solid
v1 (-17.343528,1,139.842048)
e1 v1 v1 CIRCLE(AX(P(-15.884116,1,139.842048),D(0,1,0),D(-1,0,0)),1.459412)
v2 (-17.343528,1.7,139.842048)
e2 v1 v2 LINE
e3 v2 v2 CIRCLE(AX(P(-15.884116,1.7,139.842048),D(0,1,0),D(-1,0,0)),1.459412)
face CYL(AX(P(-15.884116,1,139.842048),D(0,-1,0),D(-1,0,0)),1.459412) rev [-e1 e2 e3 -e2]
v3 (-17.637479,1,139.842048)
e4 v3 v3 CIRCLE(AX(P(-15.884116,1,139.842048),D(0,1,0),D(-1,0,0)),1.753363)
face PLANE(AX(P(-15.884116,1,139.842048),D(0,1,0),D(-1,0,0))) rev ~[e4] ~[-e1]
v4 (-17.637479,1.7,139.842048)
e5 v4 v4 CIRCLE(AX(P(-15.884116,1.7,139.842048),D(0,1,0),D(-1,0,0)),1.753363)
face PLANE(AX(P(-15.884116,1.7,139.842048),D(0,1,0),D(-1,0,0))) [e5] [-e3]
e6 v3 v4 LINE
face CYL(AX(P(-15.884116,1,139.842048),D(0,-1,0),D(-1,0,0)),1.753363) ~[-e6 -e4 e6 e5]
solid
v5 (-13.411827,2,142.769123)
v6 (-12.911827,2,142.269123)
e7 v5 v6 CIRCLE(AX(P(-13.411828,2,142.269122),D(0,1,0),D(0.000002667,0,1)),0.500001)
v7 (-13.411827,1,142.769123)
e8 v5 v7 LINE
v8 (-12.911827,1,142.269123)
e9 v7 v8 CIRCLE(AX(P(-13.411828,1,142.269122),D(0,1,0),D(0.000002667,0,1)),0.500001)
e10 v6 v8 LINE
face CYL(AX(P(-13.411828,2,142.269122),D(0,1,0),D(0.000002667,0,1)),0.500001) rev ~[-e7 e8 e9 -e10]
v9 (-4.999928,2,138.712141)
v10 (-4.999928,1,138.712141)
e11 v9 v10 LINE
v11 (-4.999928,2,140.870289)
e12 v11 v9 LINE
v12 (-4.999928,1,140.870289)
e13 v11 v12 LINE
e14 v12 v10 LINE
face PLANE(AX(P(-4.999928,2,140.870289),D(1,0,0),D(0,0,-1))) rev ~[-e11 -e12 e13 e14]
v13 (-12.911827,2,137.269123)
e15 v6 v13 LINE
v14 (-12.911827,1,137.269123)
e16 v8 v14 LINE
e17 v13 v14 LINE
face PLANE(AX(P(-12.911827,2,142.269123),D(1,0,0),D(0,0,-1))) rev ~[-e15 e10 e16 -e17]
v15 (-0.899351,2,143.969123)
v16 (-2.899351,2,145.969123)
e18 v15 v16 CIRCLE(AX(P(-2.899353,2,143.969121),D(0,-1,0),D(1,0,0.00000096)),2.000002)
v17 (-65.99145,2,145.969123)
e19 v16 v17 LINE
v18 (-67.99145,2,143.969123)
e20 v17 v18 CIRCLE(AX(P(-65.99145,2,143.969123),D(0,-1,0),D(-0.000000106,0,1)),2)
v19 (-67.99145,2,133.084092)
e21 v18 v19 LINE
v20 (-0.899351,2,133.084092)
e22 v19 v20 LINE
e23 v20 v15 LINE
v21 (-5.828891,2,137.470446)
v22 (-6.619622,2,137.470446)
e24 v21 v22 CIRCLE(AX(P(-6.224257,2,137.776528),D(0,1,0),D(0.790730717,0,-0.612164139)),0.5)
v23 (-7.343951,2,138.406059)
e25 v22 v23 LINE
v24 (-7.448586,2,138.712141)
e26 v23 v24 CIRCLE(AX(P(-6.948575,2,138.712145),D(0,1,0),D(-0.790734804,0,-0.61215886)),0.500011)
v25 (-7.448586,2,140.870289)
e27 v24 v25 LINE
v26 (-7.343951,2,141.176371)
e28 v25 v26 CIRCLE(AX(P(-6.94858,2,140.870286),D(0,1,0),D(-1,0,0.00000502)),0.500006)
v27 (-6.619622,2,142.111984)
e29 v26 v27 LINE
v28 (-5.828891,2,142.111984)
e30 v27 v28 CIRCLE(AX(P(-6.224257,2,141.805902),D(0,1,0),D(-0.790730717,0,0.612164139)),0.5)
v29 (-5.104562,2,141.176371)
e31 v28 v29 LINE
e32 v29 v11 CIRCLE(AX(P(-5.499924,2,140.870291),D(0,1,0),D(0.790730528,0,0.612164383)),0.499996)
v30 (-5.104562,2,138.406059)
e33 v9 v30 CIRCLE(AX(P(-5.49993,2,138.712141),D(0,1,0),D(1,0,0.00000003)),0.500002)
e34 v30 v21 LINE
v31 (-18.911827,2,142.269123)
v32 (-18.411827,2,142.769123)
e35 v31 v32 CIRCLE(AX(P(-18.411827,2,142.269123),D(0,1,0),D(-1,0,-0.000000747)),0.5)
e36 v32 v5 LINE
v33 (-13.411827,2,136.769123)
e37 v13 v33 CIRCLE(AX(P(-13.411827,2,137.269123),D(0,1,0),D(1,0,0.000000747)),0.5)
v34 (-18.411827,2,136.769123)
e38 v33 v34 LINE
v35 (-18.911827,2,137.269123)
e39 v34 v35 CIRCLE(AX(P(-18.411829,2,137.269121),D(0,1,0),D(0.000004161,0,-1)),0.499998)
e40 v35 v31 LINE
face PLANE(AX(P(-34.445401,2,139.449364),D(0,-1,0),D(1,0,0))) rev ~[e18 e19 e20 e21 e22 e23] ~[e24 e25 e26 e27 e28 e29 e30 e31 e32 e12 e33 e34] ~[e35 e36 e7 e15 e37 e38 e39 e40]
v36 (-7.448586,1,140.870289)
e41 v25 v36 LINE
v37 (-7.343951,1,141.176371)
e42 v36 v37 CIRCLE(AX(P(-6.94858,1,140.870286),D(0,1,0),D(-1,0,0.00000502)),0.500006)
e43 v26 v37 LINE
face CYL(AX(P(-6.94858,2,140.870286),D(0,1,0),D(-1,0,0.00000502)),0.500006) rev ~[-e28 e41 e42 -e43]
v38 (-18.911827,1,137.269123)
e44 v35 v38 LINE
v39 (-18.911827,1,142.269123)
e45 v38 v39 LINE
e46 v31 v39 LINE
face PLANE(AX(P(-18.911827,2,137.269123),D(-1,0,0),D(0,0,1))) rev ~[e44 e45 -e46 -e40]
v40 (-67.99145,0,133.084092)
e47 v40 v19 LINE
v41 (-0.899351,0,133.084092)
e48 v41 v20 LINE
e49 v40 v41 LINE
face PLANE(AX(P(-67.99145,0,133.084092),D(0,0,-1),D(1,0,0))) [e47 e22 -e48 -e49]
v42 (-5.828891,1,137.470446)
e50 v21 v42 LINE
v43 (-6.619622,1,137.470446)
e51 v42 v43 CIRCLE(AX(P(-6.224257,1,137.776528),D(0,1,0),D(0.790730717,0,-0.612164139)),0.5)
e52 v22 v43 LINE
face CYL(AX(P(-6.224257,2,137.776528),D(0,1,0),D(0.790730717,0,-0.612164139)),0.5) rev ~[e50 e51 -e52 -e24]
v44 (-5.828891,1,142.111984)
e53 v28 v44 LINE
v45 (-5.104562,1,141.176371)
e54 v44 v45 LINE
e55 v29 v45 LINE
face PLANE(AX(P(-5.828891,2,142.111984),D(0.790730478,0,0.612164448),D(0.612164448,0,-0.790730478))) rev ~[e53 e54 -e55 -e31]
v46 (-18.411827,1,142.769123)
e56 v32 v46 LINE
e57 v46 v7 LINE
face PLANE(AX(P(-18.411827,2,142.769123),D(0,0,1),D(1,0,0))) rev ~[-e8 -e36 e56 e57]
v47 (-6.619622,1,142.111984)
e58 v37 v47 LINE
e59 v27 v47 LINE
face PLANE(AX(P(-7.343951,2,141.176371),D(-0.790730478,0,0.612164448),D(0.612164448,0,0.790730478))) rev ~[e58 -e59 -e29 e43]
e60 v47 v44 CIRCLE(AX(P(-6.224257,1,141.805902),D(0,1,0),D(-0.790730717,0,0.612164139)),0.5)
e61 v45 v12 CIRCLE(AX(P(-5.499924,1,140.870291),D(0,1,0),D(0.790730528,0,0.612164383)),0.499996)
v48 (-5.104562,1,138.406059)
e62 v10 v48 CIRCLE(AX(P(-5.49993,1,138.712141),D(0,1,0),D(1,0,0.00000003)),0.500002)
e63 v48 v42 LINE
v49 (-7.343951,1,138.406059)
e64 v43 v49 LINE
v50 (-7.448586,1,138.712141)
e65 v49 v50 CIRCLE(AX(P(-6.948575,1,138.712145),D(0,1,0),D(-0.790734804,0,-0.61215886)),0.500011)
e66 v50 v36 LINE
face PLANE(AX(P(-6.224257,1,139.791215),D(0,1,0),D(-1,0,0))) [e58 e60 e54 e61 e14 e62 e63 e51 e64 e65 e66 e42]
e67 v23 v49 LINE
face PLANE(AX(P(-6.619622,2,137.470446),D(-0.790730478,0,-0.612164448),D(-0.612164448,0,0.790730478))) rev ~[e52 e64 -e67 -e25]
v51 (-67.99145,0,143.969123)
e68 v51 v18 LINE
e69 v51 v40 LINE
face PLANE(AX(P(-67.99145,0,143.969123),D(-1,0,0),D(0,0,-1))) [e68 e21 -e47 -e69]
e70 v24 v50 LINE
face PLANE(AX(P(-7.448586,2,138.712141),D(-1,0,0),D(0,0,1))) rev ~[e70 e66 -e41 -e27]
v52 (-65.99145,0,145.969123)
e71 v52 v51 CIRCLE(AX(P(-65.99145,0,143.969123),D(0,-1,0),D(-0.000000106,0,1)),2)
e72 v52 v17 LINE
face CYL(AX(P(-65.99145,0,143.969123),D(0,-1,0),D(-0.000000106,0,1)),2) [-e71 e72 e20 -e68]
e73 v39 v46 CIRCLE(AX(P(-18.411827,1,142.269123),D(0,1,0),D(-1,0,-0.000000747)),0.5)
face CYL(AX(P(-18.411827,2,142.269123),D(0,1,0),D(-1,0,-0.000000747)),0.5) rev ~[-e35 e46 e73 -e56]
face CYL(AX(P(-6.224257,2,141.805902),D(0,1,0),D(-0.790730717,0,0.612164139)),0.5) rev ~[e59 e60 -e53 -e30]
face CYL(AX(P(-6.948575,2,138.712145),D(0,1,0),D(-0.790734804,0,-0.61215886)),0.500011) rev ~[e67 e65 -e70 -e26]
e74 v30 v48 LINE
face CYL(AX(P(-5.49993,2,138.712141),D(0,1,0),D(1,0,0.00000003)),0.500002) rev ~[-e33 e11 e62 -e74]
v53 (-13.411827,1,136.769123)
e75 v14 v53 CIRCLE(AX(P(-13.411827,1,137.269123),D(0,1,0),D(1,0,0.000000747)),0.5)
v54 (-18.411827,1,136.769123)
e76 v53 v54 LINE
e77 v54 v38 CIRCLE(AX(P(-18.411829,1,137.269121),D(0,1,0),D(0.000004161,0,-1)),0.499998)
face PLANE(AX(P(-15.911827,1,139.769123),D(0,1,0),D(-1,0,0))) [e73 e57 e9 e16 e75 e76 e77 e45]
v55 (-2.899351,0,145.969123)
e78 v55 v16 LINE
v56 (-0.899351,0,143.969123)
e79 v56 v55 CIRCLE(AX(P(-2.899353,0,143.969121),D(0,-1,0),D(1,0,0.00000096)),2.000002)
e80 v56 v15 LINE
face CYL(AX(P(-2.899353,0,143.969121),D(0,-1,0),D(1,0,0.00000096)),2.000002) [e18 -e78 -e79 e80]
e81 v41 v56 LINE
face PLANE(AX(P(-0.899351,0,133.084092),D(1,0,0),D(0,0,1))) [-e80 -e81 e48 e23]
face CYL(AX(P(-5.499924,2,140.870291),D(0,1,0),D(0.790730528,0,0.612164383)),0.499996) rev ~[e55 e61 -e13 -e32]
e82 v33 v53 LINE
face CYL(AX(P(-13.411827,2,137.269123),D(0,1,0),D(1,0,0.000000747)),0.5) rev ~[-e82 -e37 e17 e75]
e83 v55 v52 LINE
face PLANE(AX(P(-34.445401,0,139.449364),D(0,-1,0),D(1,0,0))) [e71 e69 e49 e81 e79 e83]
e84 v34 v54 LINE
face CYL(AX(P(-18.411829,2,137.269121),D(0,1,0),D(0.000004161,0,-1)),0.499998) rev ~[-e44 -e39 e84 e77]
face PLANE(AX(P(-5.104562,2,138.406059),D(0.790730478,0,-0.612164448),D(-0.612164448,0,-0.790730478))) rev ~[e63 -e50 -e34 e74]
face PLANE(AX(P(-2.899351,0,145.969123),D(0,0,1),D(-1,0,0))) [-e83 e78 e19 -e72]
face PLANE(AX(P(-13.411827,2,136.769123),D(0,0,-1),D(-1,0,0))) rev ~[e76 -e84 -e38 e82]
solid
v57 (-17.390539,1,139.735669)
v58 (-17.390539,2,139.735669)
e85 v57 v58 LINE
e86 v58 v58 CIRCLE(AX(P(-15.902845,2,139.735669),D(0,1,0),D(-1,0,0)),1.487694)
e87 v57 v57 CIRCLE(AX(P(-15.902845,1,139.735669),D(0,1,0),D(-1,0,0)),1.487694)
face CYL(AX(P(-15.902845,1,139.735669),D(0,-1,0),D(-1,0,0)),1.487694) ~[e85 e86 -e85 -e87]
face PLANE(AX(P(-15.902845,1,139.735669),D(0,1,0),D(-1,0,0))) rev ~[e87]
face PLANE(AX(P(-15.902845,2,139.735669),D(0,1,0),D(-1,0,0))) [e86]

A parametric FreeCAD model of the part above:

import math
import FreeCAD as App
import Part
import Sketcher

V = App.Vector

doc = App.newDocument("Part")
params = doc.addObject("Spreadsheet::Sheet", "Params")
for row, (alias, value) in enumerate([
    ("sketch1_radius", "2.000002 mm"),
    ("pad1_length", "2 mm"),
    ("sketch2_radius", "0.5 mm"),
    ("sketch2_width", "5 mm"),
    ("pocket1_length", "1 mm"),
    ("pad2_length", "0.7 mm"),
    ("pad3_length", "1 mm"),
], start=1):
    params.set(f"A{row}", alias)
    params.set(f"B{row}", "=" + value)
    params.setAlias(f"B{row}", alias)

body = doc.addObject("PartDesign::Body", "Body")

sketch1 = doc.addObject("Sketcher::SketchObject", "Sketch")
body.addObject(sketch1)
sketch1.AttachmentSupport = (doc.XZ_Plane, [""])
sketch1.MapMode = "FlatFace"
sketch1.addGeometry([
    Part.LineSegment(V(-67.99145, 143.969123, 0), V(-67.99145, 133.084092, 0)),
    Part.LineSegment(V(-67.99145, 133.084092, 0), V(-0.899351, 133.084092, 0)),
    Part.LineSegment(V(-0.899351, 133.084092, 0), V(-0.899351, 143.969123, 0)),
    Part.ArcOfCircle(Part.Circle(V(-2.899353, 143.969121, 0), V(0, 0, 1), 2.000002), math.radians(0.000055), math.radians(89.999945)),
    Part.LineSegment(V(-2.899351, 145.969123, 0), V(-65.99145, 145.969123, 0)),
    Part.ArcOfCircle(Part.Circle(V(-65.99145, 143.969123, 0), V(0, 0, 1), 2), math.radians(90.000006), math.radians(179.999994)),
], False)
sketch1.addConstraint([
    Sketcher.Constraint("Coincident", 0, 2, 1, 1),
    Sketcher.Constraint("Coincident", 1, 2, 2, 1),
    Sketcher.Constraint("Tangent", 2, 2, 3, 1),
    Sketcher.Constraint("Tangent", 3, 2, 4, 1),
    Sketcher.Constraint("Tangent", 4, 2, 5, 1),
    Sketcher.Constraint("Tangent", 5, 2, 0, 1),
    Sketcher.Constraint("Vertical", 0),
    Sketcher.Constraint("Horizontal", 1),
    Sketcher.Constraint("Vertical", 2),
    Sketcher.Constraint("Horizontal", 4),
    Sketcher.Constraint("Equal", 3, 5),
    Sketcher.Constraint("Radius", 3, 2.000002),
    Sketcher.Constraint("DistanceX", 1, 1, 1, 2, 67.092099),
    Sketcher.Constraint("DistanceY", 0, 2, 0, 1, 10.885031),
    Sketcher.Constraint("DistanceY", -1, 1, 3, 3, 143.969121),
    Sketcher.Constraint("DistanceX", 5, 3, -1, 1, 65.99145),
])
sketch1.setExpression("Constraints[11]", "Params.sketch1_radius")
pad1 = doc.addObject("PartDesign::Pad", "Pad")
body.addObject(pad1)
pad1.Profile = sketch1
pad1.setExpression("Length", "Params.pad1_length")
pad1.Reversed = True

sketch2 = doc.addObject("Sketcher::SketchObject", "Sketch001")
body.addObject(sketch2)
sketch2.AttachmentSupport = (doc.XZ_Plane, [""])
sketch2.MapMode = "FlatFace"
sketch2.AttachmentOffset = App.Placement(V(0, 0, -2), App.Rotation())
sketch2.addGeometry([
    Part.ArcOfCircle(Part.Circle(V(-13.411827, 137.269123, 0), V(0, 0, 1), 0.5), math.radians(-90.000043), math.radians(0.000043)),
    Part.LineSegment(V(-13.411827, 136.769123, 0), V(-18.411827, 136.769123, 0)),
    Part.ArcOfCircle(Part.Circle(V(-18.411829, 137.269121, 0), V(0, 0, 1), 0.499998), math.radians(179.999762), math.radians(270.000238)),
    Part.LineSegment(V(-18.911827, 137.269123, 0), V(-18.911827, 142.269123, 0)),
    Part.ArcOfCircle(Part.Circle(V(-18.411827, 142.269123, 0), V(0, 0, 1), 0.5), math.radians(89.999957), math.radians(180.000043)),
    Part.LineSegment(V(-18.411827, 142.769123, 0), V(-13.411827, 142.769123, 0)),
    Part.ArcOfCircle(Part.Circle(V(-13.411828, 142.269122, 0), V(0, 0, 1), 0.500001), math.radians(0.000153), math.radians(89.999847)),
    Part.LineSegment(V(-12.911827, 142.269123, 0), V(-12.911827, 137.269123, 0)),
    Part.ArcOfCircle(Part.Circle(V(-6.224257, 141.805902, 0), V(0, 0, 1), 0.5), math.radians(37.746149), math.radians(142.253851)),
    Part.LineSegment(V(-5.828891, 142.111984, 0), V(-5.104562, 141.176371, 0)),
    Part.ArcOfCircle(Part.Circle(V(-5.499924, 140.870291, 0), V(0, 0, 1), 0.499996), math.radians(-0.000225), math.radians(37.746167)),
    Part.LineSegment(V(-4.999928, 140.870289, 0), V(-4.999928, 138.712141, 0)),
    Part.ArcOfCircle(Part.Circle(V(-5.49993, 138.712141, 0), V(0, 0, 1), 0.500002), math.radians(-37.745944), math.radians(0.000002)),
    Part.LineSegment(V(-5.104562, 138.406059, 0), V(-5.828891, 137.470446, 0)),
    Part.ArcOfCircle(Part.Circle(V(-6.224257, 137.776528, 0), V(0, 0, 1), 0.5), math.radians(-142.253851), math.radians(-37.746149)),
    Part.LineSegment(V(-6.619622, 137.470446, 0), V(-7.343951, 138.406059, 0)),
    Part.ArcOfCircle(Part.Circle(V(-6.948575, 138.712145, 0), V(0, 0, 1), 0.500011), math.radians(-179.999489), math.radians(-142.254233)),
    Part.LineSegment(V(-7.448586, 138.712141, 0), V(-7.448586, 140.870289, 0)),
    Part.ArcOfCircle(Part.Circle(V(-6.94858, 140.870286, 0), V(0, 0, 1), 0.500006), math.radians(142.25401), math.radians(179.999712)),
    Part.LineSegment(V(-7.343951, 141.176371, 0), V(-6.619622, 142.111984, 0)),
], False)
sketch2.addConstraint([
    Sketcher.Constraint("Tangent", 0, 1, 1, 1),
    Sketcher.Constraint("Coincident", 1, 2, 2, 2),
    Sketcher.Constraint("Coincident", 2, 1, 3, 1),
    Sketcher.Constraint("Tangent", 3, 2, 4, 2),
    Sketcher.Constraint("Tangent", 4, 1, 5, 1),
    Sketcher.Constraint("Coincident", 5, 2, 6, 2),
    Sketcher.Constraint("Coincident", 6, 1, 7, 1),
    Sketcher.Constraint("Tangent", 7, 2, 0, 2),
    Sketcher.Constraint("Tangent", 8, 1, 9, 1),
    Sketcher.Constraint("Tangent", 9, 2, 10, 2),
    Sketcher.Constraint("Coincident", 10, 1, 11, 1),
    Sketcher.Constraint("Tangent", 11, 2, 12, 2),
    Sketcher.Constraint("Coincident", 12, 1, 13, 1),
    Sketcher.Constraint("Tangent", 13, 2, 14, 2),
    Sketcher.Constraint("Tangent", 14, 1, 15, 1),
    Sketcher.Constraint("Coincident", 15, 2, 16, 2),
    Sketcher.Constraint("Coincident", 16, 1, 17, 1),
    Sketcher.Constraint("Coincident", 17, 2, 18, 2),
    Sketcher.Constraint("Coincident", 18, 1, 19, 1),
    Sketcher.Constraint("Tangent", 19, 2, 8, 2),
    Sketcher.Constraint("Horizontal", 1),
    Sketcher.Constraint("Vertical", 3),
    Sketcher.Constraint("Horizontal", 5),
    Sketcher.Constraint("Vertical", 7),
    Sketcher.Constraint("Vertical", 11),
    Sketcher.Constraint("Vertical", 17),
    Sketcher.Constraint("Equal", 0, 2),
    Sketcher.Constraint("Equal", 2, 4),
    Sketcher.Constraint("Equal", 4, 6),
    Sketcher.Constraint("Equal", 6, 8),
    Sketcher.Constraint("Equal", 2, 10),
    Sketcher.Constraint("Equal", 8, 12),
    Sketcher.Constraint("Equal", 12, 14),
    Sketcher.Constraint("Parallel", 9, 15),
    Sketcher.Constraint("Parallel", 13, 19),
    Sketcher.Constraint("Horizontal", 0, 3, 2, 1),
    Sketcher.Constraint("Horizontal", 3, 2, 6, 1),
    Sketcher.Constraint("Horizontal", 13, 2, 14, 1),
    Sketcher.Constraint("Horizontal", 12, 1, 15, 2),
    Sketcher.Constraint("Horizontal", 11, 2, 16, 1),
    Sketcher.Constraint("Horizontal", 10, 1, 17, 2),
    Sketcher.Constraint("Horizontal", 9, 2, 18, 1),
    Sketcher.Constraint("Vertical", 8, 3, 14, 3),
    Sketcher.Constraint("Vertical", 4, 3, 1, 2),
    Sketcher.Constraint("Vertical", 0, 1, 5, 2),
    Sketcher.Constraint("Vertical", 9, 2, 12, 1),
    Sketcher.Constraint("Equal", 5, 3),
    Sketcher.Constraint("Radius", 0, 0.5),
    Sketcher.Constraint("DistanceX", 1, 2, 1, 1, 5.0),
    Sketcher.Constraint("Radius", 16, 0.500011),
    Sketcher.Constraint("Radius", 18, 0.500006),
    Sketcher.Constraint("DistanceY", 11, 2, 11, 1, 2.158148),
    Sketcher.Constraint("DistanceY", -1, 1, 8, 3, 141.805902),
    Sketcher.Constraint("DistanceX", 6, 3, 12, 3, 7.911898),
    Sketcher.Constraint("DistanceY", 13, 2, 16, 3, 1.241699),
    Sketcher.Constraint("DistanceX", 2, 3, -1, 1, 18.411829),
    Sketcher.Constraint("DistanceY", -1, 1, 2, 3, 137.269121),
    Sketcher.Constraint("DistanceY", -1, 1, 10, 3, 140.870291),
    Sketcher.Constraint("DistanceY", -1, 1, 12, 3, 138.712141),
    Sketcher.Constraint("DistanceX", 18, 3, -1, 1, 6.94858),
])
sketch2.setExpression("Constraints[47]", "Params.sketch2_radius")
sketch2.setExpression("Constraints[48]", "Params.sketch2_width")
pocket1 = doc.addObject("PartDesign::Pocket", "Pocket")
body.addObject(pocket1)
pocket1.Profile = sketch2
pocket1.setExpression("Length", "Params.pocket1_length")
pocket1.Reversed = True
body2 = doc.addObject("PartDesign::Body", "Body001")

sketch3 = doc.addObject("Sketcher::SketchObject", "Sketch002")
body2.addObject(sketch3)
sketch3.AttachmentSupport = (doc.getObject("XZ_Plane001"), [""])
sketch3.MapMode = "FlatFace"
sketch3.AttachmentOffset = App.Placement(V(0, 0, -1), App.Rotation())
sketch3.addGeometry([
    Part.Circle(V(-15.884116, 139.842048, 0), V(0, 0, 1), 1.753363),
    Part.Circle(V(-15.884116, 139.842048, 0), V(0, 0, 1), 1.459412),
], False)
sketch3.addConstraint([
    Sketcher.Constraint("Coincident", 1, 3, 0, 3),
    Sketcher.Constraint("Diameter", 0, 3.506726),
    Sketcher.Constraint("Diameter", 1, 2.918824),
    Sketcher.Constraint("DistanceY", -1, 1, 0, 3, 139.842048),
    Sketcher.Constraint("DistanceX", 0, 3, -1, 1, 15.884116),
])
pad2 = doc.addObject("PartDesign::Pad", "Pad001")
body2.addObject(pad2)
pad2.Profile = sketch3
pad2.setExpression("Length", "Params.pad2_length")
pad2.Reversed = True
body3 = doc.addObject("PartDesign::Body", "Body002")

sketch4 = doc.addObject("Sketcher::SketchObject", "Sketch003")
body3.addObject(sketch4)
sketch4.AttachmentSupport = (doc.getObject("XZ_Plane002"), [""])
sketch4.MapMode = "FlatFace"
sketch4.AttachmentOffset = App.Placement(V(0, 0, -1), App.Rotation())
sketch4.addGeometry(Part.Circle(V(-15.902845, 139.735669, 0), V(0, 0, 1), 1.487694), False)
sketch4.addConstraint([
    Sketcher.Constraint("Diameter", 0, 2.975388),
    Sketcher.Constraint("DistanceY", -1, 1, 0, 3, 139.735669),
    Sketcher.Constraint("DistanceX", 0, 3, -1, 1, 15.902845),
])
pad3 = doc.addObject("PartDesign::Pad", "Pad002")
body3.addObject(pad3)
pad3.Profile = sketch4
pad3.setExpression("Length", "Params.pad3_length")
pad3.Reversed = True

doc.recompute()
